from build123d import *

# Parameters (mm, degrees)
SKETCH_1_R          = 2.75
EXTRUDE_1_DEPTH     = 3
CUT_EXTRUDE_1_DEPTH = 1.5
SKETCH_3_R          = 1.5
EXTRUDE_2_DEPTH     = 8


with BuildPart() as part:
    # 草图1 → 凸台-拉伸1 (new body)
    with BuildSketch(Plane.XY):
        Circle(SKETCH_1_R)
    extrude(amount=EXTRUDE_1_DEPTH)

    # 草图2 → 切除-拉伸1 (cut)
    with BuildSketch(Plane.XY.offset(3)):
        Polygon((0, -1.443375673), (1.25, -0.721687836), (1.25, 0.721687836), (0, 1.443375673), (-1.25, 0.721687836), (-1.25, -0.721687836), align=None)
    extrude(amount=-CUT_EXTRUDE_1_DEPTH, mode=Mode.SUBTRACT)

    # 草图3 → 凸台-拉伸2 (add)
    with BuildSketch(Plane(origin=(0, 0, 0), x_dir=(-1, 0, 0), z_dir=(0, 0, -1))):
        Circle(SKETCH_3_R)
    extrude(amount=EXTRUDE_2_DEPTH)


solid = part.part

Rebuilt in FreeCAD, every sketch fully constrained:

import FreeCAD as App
import Part
import Sketcher
from FreeCAD import Vector
Q = App.Units.Quantity

doc = App.newDocument("Part")
body = doc.addObject("PartDesign::Body", "Body")

# Sketch on XY plane
sketch1 = body.newObject("Sketcher::SketchObject", "Sketch")
sketch1.AttachmentSupport = (doc.getObject("XY_Plane"), [""])
sketch1.MapMode = "FlatFace"
sketch1.addGeometry(Part.Circle(Vector(0, 0, 0), Vector(0, 0, 1), 2.8), False)
sketch1.addConstraint([
    Sketcher.Constraint("Coincident", 0, 3, -1, 1),
    Sketcher.Constraint("Diameter", 0, Q("5.5 mm")),
])
pad1 = body.newObject("PartDesign::Pad", "Pad")
pad1.Profile = sketch1
pad1.Length = 3

# Sketch on XY plane
sketch2 = body.newObject("Sketcher::SketchObject", "Sketch001")
sketch2.AttachmentSupport = (doc.getObject("XY_Plane"), [""])
sketch2.MapMode = "FlatFace"
sketch2.AttachmentOffset = App.Placement(Vector(0, 0, 3), App.Rotation())
sketch2.addGeometry([
    Part.LineSegment(Vector(0, -1.4, 0), Vector(1.2, -0.7, 0)),  # 0
    Part.LineSegment(Vector(1.2, -0.7, 0), Vector(1.2, 0.7, 0)),  # 1
    Part.LineSegment(Vector(1.2, 0.7, 0), Vector(0, 1.4, 0)),  # 2
    Part.LineSegment(Vector(0, 1.4, 0), Vector(-1.2, 0.7, 0)),  # 3
    Part.LineSegment(Vector(-1.2, 0.7, 0), Vector(-1.2, -0.7, 0)),  # 4
    Part.LineSegment(Vector(-1.2, -0.7, 0), Vector(0, -1.4, 0)),  # 5
], False)
sketch2.addConstraint([
    Sketcher.Constraint("Coincident", 0, 2, 1, 1),
    Sketcher.Constraint("Coincident", 1, 2, 2, 1),
    Sketcher.Constraint("Coincident", 2, 2, 3, 1),
    Sketcher.Constraint("Coincident", 3, 2, 4, 1),
    Sketcher.Constraint("Coincident", 4, 2, 5, 1),
    Sketcher.Constraint("Coincident", 5, 2, 0, 1),
    Sketcher.Constraint("Vertical", 1),
    Sketcher.Constraint("Vertical", 4),
    Sketcher.Constraint("Symmetric", 0, 2, 3, 2, -1, 1),
    Sketcher.Constraint("Symmetric", 2, 2, 5, 2, -1, 1),
    Sketcher.Constraint("PointOnObject", 2, 2, -2),
    Sketcher.Constraint("Parallel", 2, 5),
    Sketcher.Constraint("Horizontal", 1, 2, 3, 2),
    Sketcher.Constraint("Angle", 0, Q("30 deg")),
    Sketcher.Constraint("DistanceX", 3, 2, 1, 2, Q("2.5 mm")),
    Sketcher.Constraint("DistanceY", 1, 1, 1, 2, Q("1.443376 mm")),
])
pocket1 = body.newObject("PartDesign::Pocket", "Pocket")
pocket1.Profile = sketch2
pocket1.Length = 1.5

# Sketch on XY plane
sketch3 = body.newObject("Sketcher::SketchObject", "Sketch002")
sketch3.AttachmentSupport = (doc.getObject("XY_Plane"), [""])
sketch3.MapMode = "FlatFace"
sketch3.addGeometry(Part.Circle(Vector(0, 0, 0), Vector(0, 0, 1), 1.5), False)
sketch3.addConstraint([
    Sketcher.Constraint("Coincident", 0, 3, -1, 1),
    Sketcher.Constraint("Diameter", 0, Q("3 mm")),
])
pad2 = body.newObject("PartDesign::Pad", "Pad001")
pad2.Profile = sketch3
pad2.Length = 8
pad2.Reversed = True

doc.recompute()
